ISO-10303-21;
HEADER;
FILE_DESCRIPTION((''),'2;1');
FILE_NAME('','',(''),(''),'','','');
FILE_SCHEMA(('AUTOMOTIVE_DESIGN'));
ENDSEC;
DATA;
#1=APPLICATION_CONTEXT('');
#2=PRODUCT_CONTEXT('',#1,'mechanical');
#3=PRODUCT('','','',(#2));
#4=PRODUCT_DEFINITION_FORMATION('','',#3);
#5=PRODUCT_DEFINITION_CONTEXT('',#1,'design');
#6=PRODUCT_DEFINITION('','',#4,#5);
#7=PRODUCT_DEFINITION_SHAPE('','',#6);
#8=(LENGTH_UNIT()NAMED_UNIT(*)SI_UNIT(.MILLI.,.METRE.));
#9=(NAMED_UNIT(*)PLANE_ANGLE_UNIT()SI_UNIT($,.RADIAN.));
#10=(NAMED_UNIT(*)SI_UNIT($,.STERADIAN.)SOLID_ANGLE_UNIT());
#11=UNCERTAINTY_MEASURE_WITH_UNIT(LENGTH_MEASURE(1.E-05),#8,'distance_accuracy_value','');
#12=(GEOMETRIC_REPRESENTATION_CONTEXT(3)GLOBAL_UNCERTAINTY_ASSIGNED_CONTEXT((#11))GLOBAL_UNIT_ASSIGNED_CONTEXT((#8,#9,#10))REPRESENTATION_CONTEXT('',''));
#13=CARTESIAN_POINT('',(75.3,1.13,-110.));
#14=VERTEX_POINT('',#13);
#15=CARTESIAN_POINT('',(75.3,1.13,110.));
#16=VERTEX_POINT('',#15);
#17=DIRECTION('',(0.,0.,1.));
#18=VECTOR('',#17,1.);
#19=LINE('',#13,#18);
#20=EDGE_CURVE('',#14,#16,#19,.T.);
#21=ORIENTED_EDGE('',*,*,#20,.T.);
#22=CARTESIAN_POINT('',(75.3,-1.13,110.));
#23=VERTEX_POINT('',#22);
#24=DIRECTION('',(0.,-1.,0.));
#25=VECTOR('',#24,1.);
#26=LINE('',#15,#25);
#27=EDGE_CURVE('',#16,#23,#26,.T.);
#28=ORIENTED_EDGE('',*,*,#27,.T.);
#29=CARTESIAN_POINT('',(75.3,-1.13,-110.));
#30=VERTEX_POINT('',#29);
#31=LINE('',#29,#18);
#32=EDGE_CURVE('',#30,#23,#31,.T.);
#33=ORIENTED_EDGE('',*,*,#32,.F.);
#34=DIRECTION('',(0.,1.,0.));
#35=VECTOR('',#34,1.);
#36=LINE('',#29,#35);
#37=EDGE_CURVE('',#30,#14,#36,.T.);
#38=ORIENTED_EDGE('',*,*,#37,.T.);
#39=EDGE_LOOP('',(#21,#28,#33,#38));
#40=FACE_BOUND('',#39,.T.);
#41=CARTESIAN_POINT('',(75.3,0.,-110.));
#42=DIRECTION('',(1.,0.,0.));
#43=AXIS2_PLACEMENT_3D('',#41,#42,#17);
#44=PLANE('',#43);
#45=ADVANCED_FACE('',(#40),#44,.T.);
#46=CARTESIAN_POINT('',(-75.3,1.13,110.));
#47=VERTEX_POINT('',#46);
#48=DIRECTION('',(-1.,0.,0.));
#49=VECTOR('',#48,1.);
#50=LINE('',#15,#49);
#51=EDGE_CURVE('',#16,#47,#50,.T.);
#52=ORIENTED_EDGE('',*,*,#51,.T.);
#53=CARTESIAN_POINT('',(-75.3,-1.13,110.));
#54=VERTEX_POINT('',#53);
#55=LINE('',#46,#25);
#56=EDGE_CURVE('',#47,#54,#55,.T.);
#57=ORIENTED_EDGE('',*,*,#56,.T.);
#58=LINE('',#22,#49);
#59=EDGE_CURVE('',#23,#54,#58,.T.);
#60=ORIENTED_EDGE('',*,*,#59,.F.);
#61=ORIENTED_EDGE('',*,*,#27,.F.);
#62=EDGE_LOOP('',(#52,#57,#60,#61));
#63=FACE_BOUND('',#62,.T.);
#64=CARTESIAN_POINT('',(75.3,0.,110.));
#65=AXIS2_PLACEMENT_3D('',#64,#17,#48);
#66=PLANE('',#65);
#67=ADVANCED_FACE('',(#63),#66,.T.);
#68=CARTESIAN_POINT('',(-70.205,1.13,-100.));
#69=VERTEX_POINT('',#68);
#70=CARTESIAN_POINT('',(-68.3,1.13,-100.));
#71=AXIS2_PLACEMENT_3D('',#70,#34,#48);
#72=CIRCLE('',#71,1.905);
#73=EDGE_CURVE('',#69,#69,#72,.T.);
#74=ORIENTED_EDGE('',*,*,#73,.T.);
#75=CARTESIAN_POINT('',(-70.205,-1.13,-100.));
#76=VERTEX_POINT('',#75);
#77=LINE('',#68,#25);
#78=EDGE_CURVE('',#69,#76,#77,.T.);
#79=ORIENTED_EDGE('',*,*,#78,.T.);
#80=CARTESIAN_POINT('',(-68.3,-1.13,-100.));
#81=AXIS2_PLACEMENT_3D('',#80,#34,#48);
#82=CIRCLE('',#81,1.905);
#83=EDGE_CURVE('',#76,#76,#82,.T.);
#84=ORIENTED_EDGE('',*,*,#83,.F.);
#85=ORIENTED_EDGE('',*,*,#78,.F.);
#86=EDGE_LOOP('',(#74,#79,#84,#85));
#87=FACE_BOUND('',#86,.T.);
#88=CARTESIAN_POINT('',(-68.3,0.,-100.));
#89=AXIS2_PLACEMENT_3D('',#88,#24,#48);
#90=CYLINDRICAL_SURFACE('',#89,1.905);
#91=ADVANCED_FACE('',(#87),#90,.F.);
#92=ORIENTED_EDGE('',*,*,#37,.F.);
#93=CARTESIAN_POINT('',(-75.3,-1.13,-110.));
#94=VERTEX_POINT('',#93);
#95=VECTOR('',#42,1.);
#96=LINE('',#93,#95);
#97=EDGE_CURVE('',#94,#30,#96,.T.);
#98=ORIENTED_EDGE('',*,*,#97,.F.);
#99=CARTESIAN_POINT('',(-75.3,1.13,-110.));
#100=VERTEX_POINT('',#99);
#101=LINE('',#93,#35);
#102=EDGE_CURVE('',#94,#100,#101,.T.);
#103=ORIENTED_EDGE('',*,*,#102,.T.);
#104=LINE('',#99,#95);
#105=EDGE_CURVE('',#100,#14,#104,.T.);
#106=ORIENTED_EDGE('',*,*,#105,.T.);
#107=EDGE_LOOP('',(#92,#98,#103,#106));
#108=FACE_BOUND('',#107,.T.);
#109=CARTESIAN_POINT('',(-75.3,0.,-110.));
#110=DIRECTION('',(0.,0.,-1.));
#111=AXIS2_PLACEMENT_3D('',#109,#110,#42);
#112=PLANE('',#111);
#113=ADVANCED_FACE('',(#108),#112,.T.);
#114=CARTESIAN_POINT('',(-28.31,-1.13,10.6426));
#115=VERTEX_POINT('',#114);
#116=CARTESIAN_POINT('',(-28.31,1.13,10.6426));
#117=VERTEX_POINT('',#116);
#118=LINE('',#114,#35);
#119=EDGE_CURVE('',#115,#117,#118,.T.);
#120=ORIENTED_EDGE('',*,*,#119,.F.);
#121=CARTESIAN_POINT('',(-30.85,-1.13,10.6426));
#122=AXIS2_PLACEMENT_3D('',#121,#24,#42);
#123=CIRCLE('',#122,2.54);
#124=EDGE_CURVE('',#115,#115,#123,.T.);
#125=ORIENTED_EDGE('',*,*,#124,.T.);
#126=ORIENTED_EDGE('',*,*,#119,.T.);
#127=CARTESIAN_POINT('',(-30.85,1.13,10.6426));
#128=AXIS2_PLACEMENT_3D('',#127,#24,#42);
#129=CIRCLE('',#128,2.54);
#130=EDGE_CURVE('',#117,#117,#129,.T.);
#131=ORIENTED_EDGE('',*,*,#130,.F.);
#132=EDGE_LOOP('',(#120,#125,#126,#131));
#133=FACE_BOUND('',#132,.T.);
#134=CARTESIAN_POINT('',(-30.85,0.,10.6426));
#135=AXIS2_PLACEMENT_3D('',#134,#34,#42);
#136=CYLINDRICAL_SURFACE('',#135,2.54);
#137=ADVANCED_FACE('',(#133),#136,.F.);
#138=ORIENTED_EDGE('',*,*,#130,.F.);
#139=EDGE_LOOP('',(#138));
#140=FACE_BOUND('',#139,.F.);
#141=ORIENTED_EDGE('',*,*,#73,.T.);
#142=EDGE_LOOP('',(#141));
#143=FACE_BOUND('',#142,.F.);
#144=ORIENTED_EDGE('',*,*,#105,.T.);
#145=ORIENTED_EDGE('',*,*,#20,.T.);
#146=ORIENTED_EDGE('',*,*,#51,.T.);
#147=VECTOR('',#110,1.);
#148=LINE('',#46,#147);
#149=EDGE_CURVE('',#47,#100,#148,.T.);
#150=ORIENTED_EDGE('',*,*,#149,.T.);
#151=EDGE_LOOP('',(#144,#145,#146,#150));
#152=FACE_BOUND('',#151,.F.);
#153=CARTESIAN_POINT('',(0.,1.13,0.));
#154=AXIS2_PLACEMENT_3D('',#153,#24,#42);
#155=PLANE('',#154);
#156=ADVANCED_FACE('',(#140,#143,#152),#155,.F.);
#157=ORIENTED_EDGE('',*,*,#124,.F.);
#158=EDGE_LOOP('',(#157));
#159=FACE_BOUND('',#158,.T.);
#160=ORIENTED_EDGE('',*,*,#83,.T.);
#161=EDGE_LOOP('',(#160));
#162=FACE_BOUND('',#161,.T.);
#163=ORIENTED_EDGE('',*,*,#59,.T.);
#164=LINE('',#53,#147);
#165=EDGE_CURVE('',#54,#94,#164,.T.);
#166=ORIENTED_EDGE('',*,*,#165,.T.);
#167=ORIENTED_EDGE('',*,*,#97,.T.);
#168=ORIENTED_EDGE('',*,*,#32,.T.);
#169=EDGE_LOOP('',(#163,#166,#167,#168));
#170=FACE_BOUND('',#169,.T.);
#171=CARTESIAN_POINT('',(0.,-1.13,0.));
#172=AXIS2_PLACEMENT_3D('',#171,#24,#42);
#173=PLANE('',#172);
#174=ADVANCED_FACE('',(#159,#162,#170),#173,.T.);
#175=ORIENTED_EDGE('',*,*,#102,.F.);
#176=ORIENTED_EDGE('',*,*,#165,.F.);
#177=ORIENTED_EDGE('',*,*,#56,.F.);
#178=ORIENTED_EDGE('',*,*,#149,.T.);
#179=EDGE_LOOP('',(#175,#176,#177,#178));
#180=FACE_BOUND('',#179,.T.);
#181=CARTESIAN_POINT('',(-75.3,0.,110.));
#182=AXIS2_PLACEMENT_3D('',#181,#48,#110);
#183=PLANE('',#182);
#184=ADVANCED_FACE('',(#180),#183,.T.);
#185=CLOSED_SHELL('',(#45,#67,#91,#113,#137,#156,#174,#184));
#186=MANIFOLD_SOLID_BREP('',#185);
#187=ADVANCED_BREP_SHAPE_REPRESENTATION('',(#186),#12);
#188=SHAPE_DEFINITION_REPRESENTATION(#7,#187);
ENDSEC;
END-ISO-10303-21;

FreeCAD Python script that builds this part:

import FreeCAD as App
import Part
import Sketcher

V = App.Vector

doc = App.newDocument("Part")
params = doc.addObject("Spreadsheet::Sheet", "Params")
for row, (alias, value) in enumerate([
    ("sketch1_diameter", "3.81 mm"),
    ("sketch1_diameter2", "5.08 mm"),
    ("sketch1_height", "220 mm"),
    ("sketch1_width", "150.6 mm"),
    ("pad1_length", "2.26 mm"),
], start=1):
    params.set(f"A{row}", alias)
    params.set(f"B{row}", "=" + value)
    params.setAlias(f"B{row}", alias)

body = doc.addObject("PartDesign::Body", "Body")

# Sketch on XZ plane
sketch1 = doc.addObject("Sketcher::SketchObject", "Sketch")
body.addObject(sketch1)
sketch1.AttachmentSupport = (doc.XZ_Plane, [""])
sketch1.MapMode = "FlatFace"
sketch1.addGeometry(Part.LineSegment(V(75.3, -110, 0), V(75.3, 110, 0)), False)
sketch1.addGeometry(Part.LineSegment(V(75.3, 110, 0), V(-75.3, 110, 0)), False)
sketch1.addGeometry(Part.LineSegment(V(-75.3, 110, 0), V(-75.3, -110, 0)), False)
sketch1.addGeometry(Part.LineSegment(V(-75.3, -110, 0), V(75.3, -110, 0)), False)
sketch1.addGeometry(Part.Circle(V(-68.3, -100, 0), V(0, 0, 1), 1.905), False)
sketch1.addGeometry(Part.Circle(V(-30.85, 10.6426, 0), V(0, 0, 1), 2.54), False)
sketch1.addConstraint(Sketcher.Constraint("Coincident", 0, 2, 1, 1))
sketch1.addConstraint(Sketcher.Constraint("Coincident", 1, 2, 2, 1))
sketch1.addConstraint(Sketcher.Constraint("Coincident", 2, 2, 3, 1))
sketch1.addConstraint(Sketcher.Constraint("Coincident", 3, 2, 0, 1))
sketch1.addConstraint(Sketcher.Constraint("Vertical", 0))
sketch1.addConstraint(Sketcher.Constraint("Horizontal", 1))
sketch1.addConstraint(Sketcher.Constraint("Vertical", 2))
sketch1.addConstraint(Sketcher.Constraint("Horizontal", 3))
sketch1.addConstraint(Sketcher.Constraint("Symmetric", 0, 2, 2, 2, -1, 1))
sketch1.addConstraint(Sketcher.Constraint("Diameter", 4, 3.81))
sketch1.addConstraint(Sketcher.Constraint("Diameter", 5, 5.08))
sketch1.addConstraint(Sketcher.Constraint("DistanceY", 0, 1, 0, 2, 220.0))
sketch1.addConstraint(Sketcher.Constraint("DistanceX", 1, 2, 1, 1, 150.6))
sketch1.addConstraint(Sketcher.Constraint("DistanceY", 4, 3, -1, 1, 100.0))
sketch1.addConstraint(Sketcher.Constraint("DistanceX", 1, 2, 4, 3, 7.0))
sketch1.addConstraint(Sketcher.Constraint("DistanceX", 5, 3, -1, 1, 30.85))
sketch1.addConstraint(Sketcher.Constraint("DistanceY", -1, 1, 5, 3, 10.6426))
sketch1.setExpression("Constraints[9]", "Params.sketch1_diameter")
sketch1.setExpression("Constraints[10]", "Params.sketch1_diameter2")
sketch1.setExpression("Constraints[11]", "Params.sketch1_height")
sketch1.setExpression("Constraints[12]", "Params.sketch1_width")
pad1 = doc.addObject("PartDesign::Pad", "Pad")
body.addObject(pad1)
pad1.Profile = sketch1
pad1.setExpression("Length", "Params.pad1_length")
pad1.Midplane = True

doc.recompute()
